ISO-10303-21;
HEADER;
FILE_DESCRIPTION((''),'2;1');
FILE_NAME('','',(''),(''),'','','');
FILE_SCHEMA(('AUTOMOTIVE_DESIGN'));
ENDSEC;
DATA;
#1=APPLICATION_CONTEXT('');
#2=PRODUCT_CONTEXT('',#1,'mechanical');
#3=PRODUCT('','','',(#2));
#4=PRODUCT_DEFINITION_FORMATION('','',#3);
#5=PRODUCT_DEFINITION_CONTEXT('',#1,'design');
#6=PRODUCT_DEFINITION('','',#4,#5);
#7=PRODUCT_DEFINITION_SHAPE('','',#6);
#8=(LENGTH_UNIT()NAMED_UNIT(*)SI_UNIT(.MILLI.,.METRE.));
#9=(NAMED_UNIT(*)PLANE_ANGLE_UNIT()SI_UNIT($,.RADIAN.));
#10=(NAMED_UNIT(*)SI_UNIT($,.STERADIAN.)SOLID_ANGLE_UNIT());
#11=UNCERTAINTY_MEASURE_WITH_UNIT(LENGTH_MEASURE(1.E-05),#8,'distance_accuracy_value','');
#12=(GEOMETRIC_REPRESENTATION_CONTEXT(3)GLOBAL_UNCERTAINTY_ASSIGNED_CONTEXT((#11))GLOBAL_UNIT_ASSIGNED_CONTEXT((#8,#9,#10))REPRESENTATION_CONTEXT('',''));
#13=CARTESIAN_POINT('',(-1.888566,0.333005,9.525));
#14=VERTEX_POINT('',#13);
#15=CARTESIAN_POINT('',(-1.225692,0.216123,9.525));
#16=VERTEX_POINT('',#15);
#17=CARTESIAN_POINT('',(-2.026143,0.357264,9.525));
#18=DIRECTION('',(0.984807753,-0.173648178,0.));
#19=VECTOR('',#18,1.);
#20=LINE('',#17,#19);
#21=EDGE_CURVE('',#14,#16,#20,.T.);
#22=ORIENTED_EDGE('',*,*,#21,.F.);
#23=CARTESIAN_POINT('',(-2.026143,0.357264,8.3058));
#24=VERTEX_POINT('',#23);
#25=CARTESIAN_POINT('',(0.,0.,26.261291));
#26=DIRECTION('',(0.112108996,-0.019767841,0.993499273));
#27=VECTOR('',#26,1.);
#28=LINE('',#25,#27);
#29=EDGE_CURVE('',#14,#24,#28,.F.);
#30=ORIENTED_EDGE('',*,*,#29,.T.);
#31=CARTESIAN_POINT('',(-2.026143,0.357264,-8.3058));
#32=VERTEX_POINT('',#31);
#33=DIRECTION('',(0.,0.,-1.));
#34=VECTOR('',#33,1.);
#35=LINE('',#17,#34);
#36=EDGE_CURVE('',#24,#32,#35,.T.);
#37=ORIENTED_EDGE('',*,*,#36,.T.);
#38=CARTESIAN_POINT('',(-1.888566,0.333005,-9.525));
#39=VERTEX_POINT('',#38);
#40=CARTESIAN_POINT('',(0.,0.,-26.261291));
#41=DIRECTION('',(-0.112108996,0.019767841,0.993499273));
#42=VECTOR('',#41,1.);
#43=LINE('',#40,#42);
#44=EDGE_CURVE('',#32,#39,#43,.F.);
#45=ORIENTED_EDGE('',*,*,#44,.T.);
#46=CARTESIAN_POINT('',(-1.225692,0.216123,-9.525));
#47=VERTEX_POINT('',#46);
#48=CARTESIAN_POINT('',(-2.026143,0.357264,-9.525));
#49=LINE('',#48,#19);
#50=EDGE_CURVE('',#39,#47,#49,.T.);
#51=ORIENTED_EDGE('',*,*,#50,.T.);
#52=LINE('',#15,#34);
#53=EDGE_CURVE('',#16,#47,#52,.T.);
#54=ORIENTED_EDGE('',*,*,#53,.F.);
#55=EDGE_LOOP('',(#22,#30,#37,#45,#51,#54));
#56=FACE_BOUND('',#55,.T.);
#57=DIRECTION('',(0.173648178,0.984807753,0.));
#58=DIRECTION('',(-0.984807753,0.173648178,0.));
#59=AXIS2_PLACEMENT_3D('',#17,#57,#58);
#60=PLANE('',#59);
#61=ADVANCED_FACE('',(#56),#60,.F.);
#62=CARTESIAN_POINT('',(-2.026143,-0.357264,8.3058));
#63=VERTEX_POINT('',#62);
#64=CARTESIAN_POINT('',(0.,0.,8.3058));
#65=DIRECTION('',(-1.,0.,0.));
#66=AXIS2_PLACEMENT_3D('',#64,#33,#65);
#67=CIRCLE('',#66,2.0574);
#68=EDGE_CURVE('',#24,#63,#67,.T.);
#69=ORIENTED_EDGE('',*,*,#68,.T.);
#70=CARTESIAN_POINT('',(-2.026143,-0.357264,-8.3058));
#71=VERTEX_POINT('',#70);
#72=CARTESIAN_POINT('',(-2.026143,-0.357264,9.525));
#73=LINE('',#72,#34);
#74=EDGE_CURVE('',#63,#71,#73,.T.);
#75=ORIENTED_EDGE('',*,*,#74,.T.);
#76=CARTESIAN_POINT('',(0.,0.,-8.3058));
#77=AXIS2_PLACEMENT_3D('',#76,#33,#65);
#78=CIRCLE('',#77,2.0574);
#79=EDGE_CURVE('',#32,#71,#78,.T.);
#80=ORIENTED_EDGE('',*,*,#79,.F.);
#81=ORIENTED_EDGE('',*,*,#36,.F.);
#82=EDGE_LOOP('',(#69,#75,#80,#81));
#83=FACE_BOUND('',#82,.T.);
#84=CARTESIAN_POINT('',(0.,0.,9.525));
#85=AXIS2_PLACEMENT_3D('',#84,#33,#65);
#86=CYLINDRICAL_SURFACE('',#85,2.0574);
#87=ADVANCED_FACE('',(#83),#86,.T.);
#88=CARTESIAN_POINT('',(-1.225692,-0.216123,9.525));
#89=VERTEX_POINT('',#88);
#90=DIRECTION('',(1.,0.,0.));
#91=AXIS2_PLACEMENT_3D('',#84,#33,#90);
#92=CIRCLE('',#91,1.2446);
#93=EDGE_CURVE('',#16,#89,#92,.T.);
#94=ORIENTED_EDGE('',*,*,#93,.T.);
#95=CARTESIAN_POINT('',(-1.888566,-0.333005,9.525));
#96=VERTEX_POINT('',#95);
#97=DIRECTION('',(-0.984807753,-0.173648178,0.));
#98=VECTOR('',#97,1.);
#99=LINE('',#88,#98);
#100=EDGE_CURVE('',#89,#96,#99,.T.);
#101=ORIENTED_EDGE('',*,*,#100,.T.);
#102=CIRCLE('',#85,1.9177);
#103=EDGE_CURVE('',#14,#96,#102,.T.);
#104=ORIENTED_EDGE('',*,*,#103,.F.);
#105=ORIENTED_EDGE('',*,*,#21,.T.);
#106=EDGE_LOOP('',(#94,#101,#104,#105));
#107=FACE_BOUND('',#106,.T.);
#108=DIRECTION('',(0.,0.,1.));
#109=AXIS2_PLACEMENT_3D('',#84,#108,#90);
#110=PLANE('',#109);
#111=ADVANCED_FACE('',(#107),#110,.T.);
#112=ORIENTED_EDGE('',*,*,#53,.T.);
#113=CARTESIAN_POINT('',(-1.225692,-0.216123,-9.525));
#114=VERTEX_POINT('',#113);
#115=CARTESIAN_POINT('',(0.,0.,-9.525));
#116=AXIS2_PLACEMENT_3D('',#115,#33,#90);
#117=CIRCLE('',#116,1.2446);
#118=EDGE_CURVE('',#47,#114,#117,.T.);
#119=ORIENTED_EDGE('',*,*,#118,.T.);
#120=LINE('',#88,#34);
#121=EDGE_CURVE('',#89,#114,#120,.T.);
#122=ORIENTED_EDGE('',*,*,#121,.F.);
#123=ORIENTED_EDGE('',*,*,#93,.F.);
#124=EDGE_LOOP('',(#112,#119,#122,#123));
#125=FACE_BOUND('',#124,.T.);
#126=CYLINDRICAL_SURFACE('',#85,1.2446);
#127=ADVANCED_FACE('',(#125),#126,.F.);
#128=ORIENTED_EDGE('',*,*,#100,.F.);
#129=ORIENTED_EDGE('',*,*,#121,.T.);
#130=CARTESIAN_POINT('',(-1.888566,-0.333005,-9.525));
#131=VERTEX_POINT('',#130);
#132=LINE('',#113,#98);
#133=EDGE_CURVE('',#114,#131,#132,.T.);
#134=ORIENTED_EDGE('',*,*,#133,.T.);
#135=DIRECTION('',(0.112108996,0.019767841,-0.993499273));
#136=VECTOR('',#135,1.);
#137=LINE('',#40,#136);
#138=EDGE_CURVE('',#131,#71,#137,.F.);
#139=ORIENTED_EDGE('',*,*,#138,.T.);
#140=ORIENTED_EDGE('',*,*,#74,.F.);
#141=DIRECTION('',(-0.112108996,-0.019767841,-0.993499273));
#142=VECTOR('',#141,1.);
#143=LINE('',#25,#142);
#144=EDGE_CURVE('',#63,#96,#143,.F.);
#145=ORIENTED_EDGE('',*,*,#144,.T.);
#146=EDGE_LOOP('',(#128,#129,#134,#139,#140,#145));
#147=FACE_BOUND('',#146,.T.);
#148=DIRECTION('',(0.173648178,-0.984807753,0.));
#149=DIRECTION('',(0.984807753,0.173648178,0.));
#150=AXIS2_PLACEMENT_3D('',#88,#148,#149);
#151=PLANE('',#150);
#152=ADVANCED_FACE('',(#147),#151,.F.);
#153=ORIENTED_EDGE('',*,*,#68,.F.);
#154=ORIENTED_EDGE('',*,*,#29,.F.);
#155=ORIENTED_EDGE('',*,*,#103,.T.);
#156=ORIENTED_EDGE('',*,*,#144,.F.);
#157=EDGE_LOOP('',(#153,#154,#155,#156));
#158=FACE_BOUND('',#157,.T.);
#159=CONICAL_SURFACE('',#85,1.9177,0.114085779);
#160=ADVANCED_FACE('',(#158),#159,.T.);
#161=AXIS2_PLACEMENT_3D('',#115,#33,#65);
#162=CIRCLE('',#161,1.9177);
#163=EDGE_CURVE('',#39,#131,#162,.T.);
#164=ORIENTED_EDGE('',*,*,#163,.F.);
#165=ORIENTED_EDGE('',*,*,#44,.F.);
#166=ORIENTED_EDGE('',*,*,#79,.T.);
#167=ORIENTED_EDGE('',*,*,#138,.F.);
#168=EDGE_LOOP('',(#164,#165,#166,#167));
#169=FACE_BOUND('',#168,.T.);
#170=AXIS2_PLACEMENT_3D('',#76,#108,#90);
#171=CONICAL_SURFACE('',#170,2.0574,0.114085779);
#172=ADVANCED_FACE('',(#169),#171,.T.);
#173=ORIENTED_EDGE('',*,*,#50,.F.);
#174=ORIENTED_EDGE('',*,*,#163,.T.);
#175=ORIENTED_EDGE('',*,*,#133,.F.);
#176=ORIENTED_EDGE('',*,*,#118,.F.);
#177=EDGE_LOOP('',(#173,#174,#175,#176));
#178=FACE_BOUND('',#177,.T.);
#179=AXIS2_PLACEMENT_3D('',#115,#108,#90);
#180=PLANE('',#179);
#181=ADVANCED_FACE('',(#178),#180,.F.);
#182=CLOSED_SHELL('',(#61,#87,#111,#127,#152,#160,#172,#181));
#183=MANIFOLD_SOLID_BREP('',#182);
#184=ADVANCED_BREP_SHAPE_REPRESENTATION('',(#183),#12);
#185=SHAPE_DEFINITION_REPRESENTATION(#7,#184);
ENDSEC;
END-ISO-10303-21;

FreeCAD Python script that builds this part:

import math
import FreeCAD as App
import Part
import Sketcher
from FreeCAD import Vector
Q = App.Units.Quantity

doc = App.newDocument("Part")
body = doc.addObject("PartDesign::Body", "Body")

# Sketch on XY plane
sketch1 = doc.addObject("Sketcher::SketchObject", "Sketch")
body.addObject(sketch1)
sketch1.AttachmentSupport = (doc.XY_Plane, [""])
sketch1.MapMode = "FlatFace"
sketch1.addGeometry(Part.LineSegment(Vector(-2.03, 0.36, 0), Vector(-1.23, 0.22, 0)), False)
sketch1.addGeometry(Part.ArcOfCircle(Part.Circle(Vector(0, 0, 0), Vector(0, 0, 1), 1.24), math.radians(-170), math.radians(170)), False)
sketch1.addGeometry(Part.LineSegment(Vector(-1.23, -0.22, 0), Vector(-2.03, -0.36, 0)), False)
sketch1.addGeometry(Part.ArcOfCircle(Part.Circle(Vector(0, 0, 0), Vector(0, 0, 1), 2.06), math.radians(-170), math.radians(170)), False)
sketch1.addConstraint(Sketcher.Constraint("Coincident", 0, 2, 1, 2))
sketch1.addConstraint(Sketcher.Constraint("Coincident", 1, 1, 2, 1))
sketch1.addConstraint(Sketcher.Constraint("Coincident", 2, 2, 3, 1))
sketch1.addConstraint(Sketcher.Constraint("Coincident", 3, 2, 0, 1))
sketch1.addConstraint(Sketcher.Constraint("Coincident", 1, 3, -1, 1))
sketch1.addConstraint(Sketcher.Constraint("Coincident", 3, 3, -1, 1))
sketch1.addConstraint(Sketcher.Constraint("Vertical", 0, 2, 1, 1))
sketch1.addConstraint(Sketcher.Constraint("Vertical", 2, 2, 3, 2))
sketch1.addConstraint(Sketcher.Constraint("Angle", 0, Q("-10 deg")))
sketch1.addConstraint(Sketcher.Constraint("Radius", 1, Q("0.049 in")))
sketch1.addConstraint(Sketcher.Constraint("Radius", 3, Q("0.081 in")))
sketch1.addConstraint(Sketcher.Constraint("DistanceX", 0, 2, -1, 1, Q("1.225692 mm")))
pad1 = doc.addObject("PartDesign::Pad", "Pad")
body.addObject(pad1)
pad1.Profile = sketch1
pad1.Length = Q("0.75 in")
pad1.Midplane = True

# Sketch on YZ plane
sketch2 = doc.addObject("Sketcher::SketchObject", "Sketch001")
body.addObject(sketch2)
sketch2.AttachmentSupport = (doc.YZ_Plane, [""])
sketch2.MapMode = "FlatFace"
sketch2.addGeometry(Part.LineSegment(Vector(1.92, -9.53, 0), Vector(2.06, -9.53, 0)), False)
sketch2.addGeometry(Part.LineSegment(Vector(2.06, -9.53, 0), Vector(2.06, -8.31, 0)), False)
sketch2.addGeometry(Part.LineSegment(Vector(2.06, -8.31, 0), Vector(1.92, -9.53, 0)), False)
sketch2.addGeometry(Part.LineSegment(Vector(2.06, 8.31, 0), Vector(2.06, 9.53, 0)), False)
sketch2.addGeometry(Part.LineSegment(Vector(2.06, 9.53, 0), Vector(1.92, 9.53, 0)), False)
sketch2.addGeometry(Part.LineSegment(Vector(1.92, 9.53, 0), Vector(2.06, 8.31, 0)), False)
sketch2.addConstraint(Sketcher.Constraint("Coincident", 0, 2, 1, 1))
sketch2.addConstraint(Sketcher.Constraint("Coincident", 1, 2, 2, 1))
sketch2.addConstraint(Sketcher.Constraint("Coincident", 2, 2, 0, 1))
sketch2.addConstraint(Sketcher.Constraint("Coincident", 3, 2, 4, 1))
sketch2.addConstraint(Sketcher.Constraint("Coincident", 4, 2, 5, 1))
sketch2.addConstraint(Sketcher.Constraint("Coincident", 5, 2, 3, 1))
sketch2.addConstraint(Sketcher.Constraint("Horizontal", 0))
sketch2.addConstraint(Sketcher.Constraint("Vertical", 1))
sketch2.addConstraint(Sketcher.Constraint("Vertical", 3))
sketch2.addConstraint(Sketcher.Constraint("Horizontal", 4))
sketch2.addConstraint(Sketcher.Constraint("Symmetric", 0, 2, 3, 2, -1))
sketch2.addConstraint(Sketcher.Constraint("Vertical", 2, 2, 4, 2))
sketch2.addConstraint(Sketcher.Constraint("Equal", 1, 3))
sketch2.addConstraint(Sketcher.Constraint("DistanceY", 1, 1, 1, 2, Q("0.048 in")))
sketch2.addConstraint(Sketcher.Constraint("DistanceY", 0, 2, 3, 2, Q("0.75 in")))
sketch2.addConstraint(Sketcher.Constraint("DistanceX", 0, 1, 0, 2, Q("0.0055 in")))
sketch2.addConstraint(Sketcher.Constraint("DistanceX", -1, 1, 0, 2, Q("0.081 in")))
groove = doc.addObject("PartDesign::Groove", "Groove")
body.addObject(groove)
groove.Profile = sketch2
groove.ReferenceAxis = (sketch2, ["V_Axis"])
groove.Angle = 360

doc.recompute()
